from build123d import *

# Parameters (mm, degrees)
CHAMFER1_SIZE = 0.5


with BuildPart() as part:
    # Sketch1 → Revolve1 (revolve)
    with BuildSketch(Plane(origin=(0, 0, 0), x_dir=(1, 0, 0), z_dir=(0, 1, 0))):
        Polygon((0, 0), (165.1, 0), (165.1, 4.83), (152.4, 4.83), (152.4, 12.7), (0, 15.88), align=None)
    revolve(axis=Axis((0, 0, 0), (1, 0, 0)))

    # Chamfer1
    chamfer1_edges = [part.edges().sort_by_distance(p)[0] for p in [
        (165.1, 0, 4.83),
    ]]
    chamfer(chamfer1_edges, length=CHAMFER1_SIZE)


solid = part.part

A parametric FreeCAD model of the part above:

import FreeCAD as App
import Part
import Sketcher

V = App.Vector
Q = App.Units.Quantity


def edges_at(feature, points):
    """Names of the edges that pass closest to the given points."""
    edges = feature.Shape.Edges
    near = lambda p: min(range(len(edges)), key=lambda i: edges[i].distToShape(Part.Vertex(*p))[0])
    return sorted({f"Edge{near(p) + 1}" for p in points})

doc = App.newDocument("Part")
body = doc.addObject("PartDesign::Body", "Body")

# Sketch on XZ plane
sketch1 = body.newObject("Sketcher::SketchObject", "Sketch")
sketch1.AttachmentSupport = (doc.getObject("XZ_Plane"), [""])
sketch1.MapMode = "FlatFace"
sketch1.addGeometry([
    Part.LineSegment(V(0, 0, 0), V(165.1, 0, 0)),  # 0
    Part.LineSegment(V(165.1, 0, 0), V(165.1, -4.8, 0)),  # 1
    Part.LineSegment(V(165.1, -4.8, 0), V(152.4, -4.8, 0)),  # 2
    Part.LineSegment(V(152.4, -4.8, 0), V(152.4, -12.7, 0)),  # 3
    Part.LineSegment(V(152.4, -12.7, 0), V(0, -15.9, 0)),  # 4
    Part.LineSegment(V(0, -15.9, 0), V(0, 0, 0)),  # 5
], False)
sketch1.addConstraint([
    Sketcher.Constraint("Coincident", 0, 2, 1, 1),
    Sketcher.Constraint("Coincident", 1, 2, 2, 1),
    Sketcher.Constraint("Coincident", 2, 2, 3, 1),
    Sketcher.Constraint("Coincident", 3, 2, 4, 1),
    Sketcher.Constraint("Coincident", 4, 2, 5, 1),
    Sketcher.Constraint("Coincident", 5, 2, 0, 1),
    Sketcher.Constraint("Horizontal", 0),
    Sketcher.Constraint("Vertical", 1),
    Sketcher.Constraint("Horizontal", 2),
    Sketcher.Constraint("Vertical", 3),
    Sketcher.Constraint("Vertical", 5),
    Sketcher.Constraint("Coincident", 5, 2, -1, 1),
    Sketcher.Constraint("DistanceX", 0, 1, 0, 2, Q("6.5 in")),
    Sketcher.Constraint("DistanceX", 2, 2, 2, 1, Q("0.5 in")),
    Sketcher.Constraint("DistanceY", 3, 2, -1, 1, Q("0.5 in")),
    Sketcher.Constraint("DistanceY", 1, 2, 1, 1, Q("4.83 mm")),
    Sketcher.Constraint("DistanceY", 5, 1, 5, 2, Q("15.88 mm")),
])
revolution = body.newObject("PartDesign::Revolution", "Revolution")
revolution.Profile = sketch1
revolution.ReferenceAxis = (sketch1, ["H_Axis"])
revolution.Angle = 360
doc.recompute()

chamfer = body.newObject("PartDesign::Chamfer", "Chamfer")
chamfer.Base = (revolution, edges_at(revolution, [(165.1, 0, 4.83)]))
chamfer.Size = 0.5

doc.recompute()
